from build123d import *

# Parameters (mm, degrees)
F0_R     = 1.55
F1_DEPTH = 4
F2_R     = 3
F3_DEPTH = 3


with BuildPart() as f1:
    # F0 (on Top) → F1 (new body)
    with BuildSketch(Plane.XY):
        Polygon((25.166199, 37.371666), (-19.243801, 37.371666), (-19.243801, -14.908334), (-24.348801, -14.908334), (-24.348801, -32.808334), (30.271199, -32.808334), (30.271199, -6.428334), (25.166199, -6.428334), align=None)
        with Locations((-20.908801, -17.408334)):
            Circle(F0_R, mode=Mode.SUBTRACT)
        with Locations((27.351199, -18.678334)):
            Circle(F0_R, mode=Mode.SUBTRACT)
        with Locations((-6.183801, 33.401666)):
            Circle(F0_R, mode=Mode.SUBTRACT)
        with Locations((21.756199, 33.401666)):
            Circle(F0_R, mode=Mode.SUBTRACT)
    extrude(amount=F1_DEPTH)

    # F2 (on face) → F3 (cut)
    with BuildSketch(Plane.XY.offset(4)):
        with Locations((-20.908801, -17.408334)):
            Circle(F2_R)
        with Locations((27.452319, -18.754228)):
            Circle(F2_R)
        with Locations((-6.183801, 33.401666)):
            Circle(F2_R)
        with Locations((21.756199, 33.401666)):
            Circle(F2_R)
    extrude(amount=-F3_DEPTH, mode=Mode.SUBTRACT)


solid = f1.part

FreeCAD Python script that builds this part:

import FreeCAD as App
import Part
import Sketcher
from FreeCAD import Vector
Q = App.Units.Quantity


def add_polygon(sketch, points):
    """Adds a closed chain of lines whose ends are joined by coincident constraints."""
    first, n = sketch.GeometryCount, len(points)
    for a, b in zip(points, points[1:] + points[:1]):
        sketch.addGeometry(Part.LineSegment(App.Vector(*a, 0), App.Vector(*b, 0)), False)
    for i in range(n):
        sketch.addConstraint(Sketcher.Constraint("Coincident", first + i, 2, first + (i + 1) % n, 1))

doc = App.newDocument("Part")
params = doc.addObject("Spreadsheet::Sheet", "Params")
for row, (alias, value) in enumerate([
    ("sketch1_diameter", "3.1 mm"),
    ("sketch1_height", "17.9 mm"),
    ("sketch1_height2", "43.8 mm"),
    ("sketch1_width", "44.41 mm"),
    ("sketch1_width2", "54.62 mm"),
    ("pad1_length", "4 mm"),
    ("sketch2_diameter", "6 mm"),
    ("pocket1_length", "3 mm"),
], start=1):
    params.set(f"A{row}", alias)
    params.set(f"B{row}", "=" + value)
    params.setAlias(f"B{row}", alias)

body = doc.addObject("PartDesign::Body", "Body")

sketch1 = doc.addObject("Sketcher::SketchObject", "Sketch")
body.addObject(sketch1)
sketch1.AttachmentSupport = (doc.XY_Plane, [""])
sketch1.MapMode = "FlatFace"
add_polygon(sketch1, [(25.2, 37.4), (-19.2, 37.4), (-19.2, -14.9), (-24.3, -14.9), (-24.3, -32.8), (30.3, -32.8), (30.3, -6.4), (25.2, -6.4)])
sketch1.addGeometry(Part.Circle(Vector(-20.9, -17.4, 0), Vector(0, 0, 1), 1.6), False)
sketch1.addGeometry(Part.Circle(Vector(27.4, -18.7, 0), Vector(0, 0, 1), 1.6), False)
sketch1.addGeometry(Part.Circle(Vector(-6.2, 33.4, 0), Vector(0, 0, 1), 1.6), False)
sketch1.addGeometry(Part.Circle(Vector(21.8, 33.4, 0), Vector(0, 0, 1), 1.6), False)
sketch1.addConstraint(Sketcher.Constraint("Horizontal", 0))
sketch1.addConstraint(Sketcher.Constraint("Vertical", 1))
sketch1.addConstraint(Sketcher.Constraint("Horizontal", 2))
sketch1.addConstraint(Sketcher.Constraint("Vertical", 3))
sketch1.addConstraint(Sketcher.Constraint("Horizontal", 4))
sketch1.addConstraint(Sketcher.Constraint("Vertical", 5))
sketch1.addConstraint(Sketcher.Constraint("Horizontal", 6))
sketch1.addConstraint(Sketcher.Constraint("Vertical", 7))
sketch1.addConstraint(Sketcher.Constraint("Equal", 8, 9))
sketch1.addConstraint(Sketcher.Constraint("Equal", 9, 10))
sketch1.addConstraint(Sketcher.Constraint("Equal", 10, 11))
sketch1.addConstraint(Sketcher.Constraint("Horizontal", 10, 3, 11, 3))
sketch1.addConstraint(Sketcher.Constraint("Equal", 2, 6))
sketch1.addConstraint(Sketcher.Constraint("Diameter", 8, Q("3.1 mm")))
sketch1.addConstraint(Sketcher.Constraint("DistanceY", 3, 2, 3, 1, Q("17.9 mm")))
sketch1.addConstraint(Sketcher.Constraint("DistanceY", 7, 1, 7, 2, Q("43.8 mm")))
sketch1.addConstraint(Sketcher.Constraint("DistanceX", 0, 2, 11, 3, Q("41 mm")))
sketch1.addConstraint(Sketcher.Constraint("DistanceX", 0, 2, 0, 1, Q("44.41 mm")))
sketch1.addConstraint(Sketcher.Constraint("DistanceX", 4, 1, 4, 2, Q("54.62 mm")))
sketch1.addConstraint(Sketcher.Constraint("DistanceY", 1, 2, 1, 1, Q("52.28 mm")))
sketch1.addConstraint(Sketcher.Constraint("DistanceY", 8, 3, 1, 2, Q("2.5 mm")))
sketch1.addConstraint(Sketcher.Constraint("DistanceX", 2, 2, 9, 3, Q("51.7 mm")))
sketch1.addConstraint(Sketcher.Constraint("DistanceX", 8, 3, 9, 3, Q("48.26 mm")))
sketch1.addConstraint(Sketcher.Constraint("DistanceY", 9, 3, 8, 3, Q("1.27 mm")))
sketch1.addConstraint(Sketcher.Constraint("DistanceY", 8, 3, 10, 3, Q("50.81 mm")))
sketch1.addConstraint(Sketcher.Constraint("DistanceX", 10, 3, 11, 3, Q("27.94 mm")))
sketch1.addConstraint(Sketcher.Constraint("DistanceX", 8, 3, -1, 1, Q("20.908801 mm")))
sketch1.addConstraint(Sketcher.Constraint("DistanceY", 8, 3, -1, 1, Q("17.408334 mm")))
sketch1.setExpression("Constraints[21]", "Params.sketch1_diameter")
sketch1.setExpression("Constraints[22]", "Params.sketch1_height")
sketch1.setExpression("Constraints[23]", "Params.sketch1_height2")
sketch1.setExpression("Constraints[25]", "Params.sketch1_width")
sketch1.setExpression("Constraints[26]", "Params.sketch1_width2")
pad1 = doc.addObject("PartDesign::Pad", "Pad")
body.addObject(pad1)
pad1.Profile = sketch1
pad1.setExpression("Length", "Params.pad1_length")

sketch2 = doc.addObject("Sketcher::SketchObject", "Sketch001")
body.addObject(sketch2)
sketch2.AttachmentSupport = (doc.XY_Plane, [""])
sketch2.MapMode = "FlatFace"
sketch2.AttachmentOffset = App.Placement(Vector(0, 0, 4), App.Rotation())
sketch2.addGeometry(Part.Circle(Vector(-20.9, -17.4, 0), Vector(0, 0, 1), 3), False)
sketch2.addGeometry(Part.Circle(Vector(27.5, -18.8, 0), Vector(0, 0, 1), 3), False)
sketch2.addGeometry(Part.Circle(Vector(-6.2, 33.4, 0), Vector(0, 0, 1), 3), False)
sketch2.addGeometry(Part.Circle(Vector(21.8, 33.4, 0), Vector(0, 0, 1), 3), False)
sketch2.addConstraint(Sketcher.Constraint("Equal", 0, 1))
sketch2.addConstraint(Sketcher.Constraint("Equal", 1, 2))
sketch2.addConstraint(Sketcher.Constraint("Equal", 2, 3))
sketch2.addConstraint(Sketcher.Constraint("Horizontal", 2, 3, 3, 3))
sketch2.addConstraint(Sketcher.Constraint("Diameter", 0, Q("6 mm")))
sketch2.addConstraint(Sketcher.Constraint("DistanceY", 0, 3, 2, 3, Q("50.81 mm")))
sketch2.addConstraint(Sketcher.Constraint("DistanceX", 2, 3, 3, 3, Q("27.94 mm")))
sketch2.addConstraint(Sketcher.Constraint("DistanceX", 0, 3, 2, 3, Q("14.725 mm")))
sketch2.addConstraint(Sketcher.Constraint("DistanceX", 0, 3, -1, 1, Q("20.908801 mm")))
sketch2.addConstraint(Sketcher.Constraint("DistanceX", -1, 1, 1, 3, Q("27.452319 mm")))
sketch2.addConstraint(Sketcher.Constraint("DistanceY", 1, 3, -1, 1, Q("18.754228 mm")))
sketch2.addConstraint(Sketcher.Constraint("DistanceY", 0, 3, -1, 1, Q("17.408334 mm")))
sketch2.setExpression("Constraints[4]", "Params.sketch2_diameter")
pocket1 = doc.addObject("PartDesign::Pocket", "Pocket")
body.addObject(pocket1)
pocket1.Profile = sketch2
pocket1.setExpression("Length", "Params.pocket1_length")

doc.recompute()
